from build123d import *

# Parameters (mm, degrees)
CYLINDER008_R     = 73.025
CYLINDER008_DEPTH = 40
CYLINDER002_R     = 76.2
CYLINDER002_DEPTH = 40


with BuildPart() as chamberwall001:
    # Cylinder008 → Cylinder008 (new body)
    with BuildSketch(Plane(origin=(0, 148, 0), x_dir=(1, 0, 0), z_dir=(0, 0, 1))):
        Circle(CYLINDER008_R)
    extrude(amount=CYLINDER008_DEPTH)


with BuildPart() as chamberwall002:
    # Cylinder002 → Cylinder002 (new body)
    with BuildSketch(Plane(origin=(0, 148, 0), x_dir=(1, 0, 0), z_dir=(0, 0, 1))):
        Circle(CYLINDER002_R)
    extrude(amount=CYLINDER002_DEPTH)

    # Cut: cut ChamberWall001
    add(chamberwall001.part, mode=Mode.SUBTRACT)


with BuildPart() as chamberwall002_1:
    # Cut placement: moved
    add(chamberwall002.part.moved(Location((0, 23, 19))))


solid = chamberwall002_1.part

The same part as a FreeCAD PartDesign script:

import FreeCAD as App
import Part
import Sketcher
Q = App.Units.Quantity

doc = App.newDocument("Part")
body = doc.addObject("PartDesign::Body", "Body")

# Sketch on XY plane
sketch1 = body.newObject("Sketcher::SketchObject", "Sketch")
sketch1.AttachmentSupport = (doc.getObject("XY_Plane"), [""])
sketch1.MapMode = "FlatFace"
sketch1.addGeometry(Part.Circle(App.Vector(0, 148, 0), App.Vector(0, 0, 1), 73), False)
sketch1.addConstraint([
    Sketcher.Constraint("PointOnObject", 0, 3, -2),
    Sketcher.Constraint("Diameter", 0, Q("5.75 in")),
    Sketcher.Constraint("DistanceY", -1, 1, 0, 3, Q("148 mm")),
])
pad1 = body.newObject("PartDesign::Pad", "Pad")
pad1.Profile = sketch1
pad1.Length = 40
body2 = doc.addObject("PartDesign::Body", "Body001")

# Sketch on XY plane
sketch2 = body2.newObject("Sketcher::SketchObject", "Sketch001")
sketch2.AttachmentSupport = (doc.getObject("XY_Plane001"), [""])
sketch2.MapMode = "FlatFace"
sketch2.addGeometry(Part.Circle(App.Vector(0, 148, 0), App.Vector(0, 0, 1), 76), False)
sketch2.addConstraint([
    Sketcher.Constraint("PointOnObject", 0, 3, -2),
    Sketcher.Constraint("Diameter", 0, Q("6 in")),
    Sketcher.Constraint("DistanceY", -1, 1, 0, 3, Q("148 mm")),
])
pad2 = body2.newObject("PartDesign::Pad", "Pad001")
pad2.Profile = sketch2
pad2.Length = 40
doc.recompute()

boolean = body2.newObject("PartDesign::Boolean", "Boolean")
boolean.Type = "Cut"
boolean.addObjects([body])
body3 = doc.addObject("PartDesign::Body", "Body002")
doc.recompute()

body2.Placement = App.Placement(App.Vector(0, 23, 19), App.Rotation(App.Vector(0, 0, 1), 0))
boolean2 = body3.newObject("PartDesign::Boolean", "Boolean001")
boolean2.Type = "Fuse"
boolean2.addObjects([body2])

doc.recompute()
